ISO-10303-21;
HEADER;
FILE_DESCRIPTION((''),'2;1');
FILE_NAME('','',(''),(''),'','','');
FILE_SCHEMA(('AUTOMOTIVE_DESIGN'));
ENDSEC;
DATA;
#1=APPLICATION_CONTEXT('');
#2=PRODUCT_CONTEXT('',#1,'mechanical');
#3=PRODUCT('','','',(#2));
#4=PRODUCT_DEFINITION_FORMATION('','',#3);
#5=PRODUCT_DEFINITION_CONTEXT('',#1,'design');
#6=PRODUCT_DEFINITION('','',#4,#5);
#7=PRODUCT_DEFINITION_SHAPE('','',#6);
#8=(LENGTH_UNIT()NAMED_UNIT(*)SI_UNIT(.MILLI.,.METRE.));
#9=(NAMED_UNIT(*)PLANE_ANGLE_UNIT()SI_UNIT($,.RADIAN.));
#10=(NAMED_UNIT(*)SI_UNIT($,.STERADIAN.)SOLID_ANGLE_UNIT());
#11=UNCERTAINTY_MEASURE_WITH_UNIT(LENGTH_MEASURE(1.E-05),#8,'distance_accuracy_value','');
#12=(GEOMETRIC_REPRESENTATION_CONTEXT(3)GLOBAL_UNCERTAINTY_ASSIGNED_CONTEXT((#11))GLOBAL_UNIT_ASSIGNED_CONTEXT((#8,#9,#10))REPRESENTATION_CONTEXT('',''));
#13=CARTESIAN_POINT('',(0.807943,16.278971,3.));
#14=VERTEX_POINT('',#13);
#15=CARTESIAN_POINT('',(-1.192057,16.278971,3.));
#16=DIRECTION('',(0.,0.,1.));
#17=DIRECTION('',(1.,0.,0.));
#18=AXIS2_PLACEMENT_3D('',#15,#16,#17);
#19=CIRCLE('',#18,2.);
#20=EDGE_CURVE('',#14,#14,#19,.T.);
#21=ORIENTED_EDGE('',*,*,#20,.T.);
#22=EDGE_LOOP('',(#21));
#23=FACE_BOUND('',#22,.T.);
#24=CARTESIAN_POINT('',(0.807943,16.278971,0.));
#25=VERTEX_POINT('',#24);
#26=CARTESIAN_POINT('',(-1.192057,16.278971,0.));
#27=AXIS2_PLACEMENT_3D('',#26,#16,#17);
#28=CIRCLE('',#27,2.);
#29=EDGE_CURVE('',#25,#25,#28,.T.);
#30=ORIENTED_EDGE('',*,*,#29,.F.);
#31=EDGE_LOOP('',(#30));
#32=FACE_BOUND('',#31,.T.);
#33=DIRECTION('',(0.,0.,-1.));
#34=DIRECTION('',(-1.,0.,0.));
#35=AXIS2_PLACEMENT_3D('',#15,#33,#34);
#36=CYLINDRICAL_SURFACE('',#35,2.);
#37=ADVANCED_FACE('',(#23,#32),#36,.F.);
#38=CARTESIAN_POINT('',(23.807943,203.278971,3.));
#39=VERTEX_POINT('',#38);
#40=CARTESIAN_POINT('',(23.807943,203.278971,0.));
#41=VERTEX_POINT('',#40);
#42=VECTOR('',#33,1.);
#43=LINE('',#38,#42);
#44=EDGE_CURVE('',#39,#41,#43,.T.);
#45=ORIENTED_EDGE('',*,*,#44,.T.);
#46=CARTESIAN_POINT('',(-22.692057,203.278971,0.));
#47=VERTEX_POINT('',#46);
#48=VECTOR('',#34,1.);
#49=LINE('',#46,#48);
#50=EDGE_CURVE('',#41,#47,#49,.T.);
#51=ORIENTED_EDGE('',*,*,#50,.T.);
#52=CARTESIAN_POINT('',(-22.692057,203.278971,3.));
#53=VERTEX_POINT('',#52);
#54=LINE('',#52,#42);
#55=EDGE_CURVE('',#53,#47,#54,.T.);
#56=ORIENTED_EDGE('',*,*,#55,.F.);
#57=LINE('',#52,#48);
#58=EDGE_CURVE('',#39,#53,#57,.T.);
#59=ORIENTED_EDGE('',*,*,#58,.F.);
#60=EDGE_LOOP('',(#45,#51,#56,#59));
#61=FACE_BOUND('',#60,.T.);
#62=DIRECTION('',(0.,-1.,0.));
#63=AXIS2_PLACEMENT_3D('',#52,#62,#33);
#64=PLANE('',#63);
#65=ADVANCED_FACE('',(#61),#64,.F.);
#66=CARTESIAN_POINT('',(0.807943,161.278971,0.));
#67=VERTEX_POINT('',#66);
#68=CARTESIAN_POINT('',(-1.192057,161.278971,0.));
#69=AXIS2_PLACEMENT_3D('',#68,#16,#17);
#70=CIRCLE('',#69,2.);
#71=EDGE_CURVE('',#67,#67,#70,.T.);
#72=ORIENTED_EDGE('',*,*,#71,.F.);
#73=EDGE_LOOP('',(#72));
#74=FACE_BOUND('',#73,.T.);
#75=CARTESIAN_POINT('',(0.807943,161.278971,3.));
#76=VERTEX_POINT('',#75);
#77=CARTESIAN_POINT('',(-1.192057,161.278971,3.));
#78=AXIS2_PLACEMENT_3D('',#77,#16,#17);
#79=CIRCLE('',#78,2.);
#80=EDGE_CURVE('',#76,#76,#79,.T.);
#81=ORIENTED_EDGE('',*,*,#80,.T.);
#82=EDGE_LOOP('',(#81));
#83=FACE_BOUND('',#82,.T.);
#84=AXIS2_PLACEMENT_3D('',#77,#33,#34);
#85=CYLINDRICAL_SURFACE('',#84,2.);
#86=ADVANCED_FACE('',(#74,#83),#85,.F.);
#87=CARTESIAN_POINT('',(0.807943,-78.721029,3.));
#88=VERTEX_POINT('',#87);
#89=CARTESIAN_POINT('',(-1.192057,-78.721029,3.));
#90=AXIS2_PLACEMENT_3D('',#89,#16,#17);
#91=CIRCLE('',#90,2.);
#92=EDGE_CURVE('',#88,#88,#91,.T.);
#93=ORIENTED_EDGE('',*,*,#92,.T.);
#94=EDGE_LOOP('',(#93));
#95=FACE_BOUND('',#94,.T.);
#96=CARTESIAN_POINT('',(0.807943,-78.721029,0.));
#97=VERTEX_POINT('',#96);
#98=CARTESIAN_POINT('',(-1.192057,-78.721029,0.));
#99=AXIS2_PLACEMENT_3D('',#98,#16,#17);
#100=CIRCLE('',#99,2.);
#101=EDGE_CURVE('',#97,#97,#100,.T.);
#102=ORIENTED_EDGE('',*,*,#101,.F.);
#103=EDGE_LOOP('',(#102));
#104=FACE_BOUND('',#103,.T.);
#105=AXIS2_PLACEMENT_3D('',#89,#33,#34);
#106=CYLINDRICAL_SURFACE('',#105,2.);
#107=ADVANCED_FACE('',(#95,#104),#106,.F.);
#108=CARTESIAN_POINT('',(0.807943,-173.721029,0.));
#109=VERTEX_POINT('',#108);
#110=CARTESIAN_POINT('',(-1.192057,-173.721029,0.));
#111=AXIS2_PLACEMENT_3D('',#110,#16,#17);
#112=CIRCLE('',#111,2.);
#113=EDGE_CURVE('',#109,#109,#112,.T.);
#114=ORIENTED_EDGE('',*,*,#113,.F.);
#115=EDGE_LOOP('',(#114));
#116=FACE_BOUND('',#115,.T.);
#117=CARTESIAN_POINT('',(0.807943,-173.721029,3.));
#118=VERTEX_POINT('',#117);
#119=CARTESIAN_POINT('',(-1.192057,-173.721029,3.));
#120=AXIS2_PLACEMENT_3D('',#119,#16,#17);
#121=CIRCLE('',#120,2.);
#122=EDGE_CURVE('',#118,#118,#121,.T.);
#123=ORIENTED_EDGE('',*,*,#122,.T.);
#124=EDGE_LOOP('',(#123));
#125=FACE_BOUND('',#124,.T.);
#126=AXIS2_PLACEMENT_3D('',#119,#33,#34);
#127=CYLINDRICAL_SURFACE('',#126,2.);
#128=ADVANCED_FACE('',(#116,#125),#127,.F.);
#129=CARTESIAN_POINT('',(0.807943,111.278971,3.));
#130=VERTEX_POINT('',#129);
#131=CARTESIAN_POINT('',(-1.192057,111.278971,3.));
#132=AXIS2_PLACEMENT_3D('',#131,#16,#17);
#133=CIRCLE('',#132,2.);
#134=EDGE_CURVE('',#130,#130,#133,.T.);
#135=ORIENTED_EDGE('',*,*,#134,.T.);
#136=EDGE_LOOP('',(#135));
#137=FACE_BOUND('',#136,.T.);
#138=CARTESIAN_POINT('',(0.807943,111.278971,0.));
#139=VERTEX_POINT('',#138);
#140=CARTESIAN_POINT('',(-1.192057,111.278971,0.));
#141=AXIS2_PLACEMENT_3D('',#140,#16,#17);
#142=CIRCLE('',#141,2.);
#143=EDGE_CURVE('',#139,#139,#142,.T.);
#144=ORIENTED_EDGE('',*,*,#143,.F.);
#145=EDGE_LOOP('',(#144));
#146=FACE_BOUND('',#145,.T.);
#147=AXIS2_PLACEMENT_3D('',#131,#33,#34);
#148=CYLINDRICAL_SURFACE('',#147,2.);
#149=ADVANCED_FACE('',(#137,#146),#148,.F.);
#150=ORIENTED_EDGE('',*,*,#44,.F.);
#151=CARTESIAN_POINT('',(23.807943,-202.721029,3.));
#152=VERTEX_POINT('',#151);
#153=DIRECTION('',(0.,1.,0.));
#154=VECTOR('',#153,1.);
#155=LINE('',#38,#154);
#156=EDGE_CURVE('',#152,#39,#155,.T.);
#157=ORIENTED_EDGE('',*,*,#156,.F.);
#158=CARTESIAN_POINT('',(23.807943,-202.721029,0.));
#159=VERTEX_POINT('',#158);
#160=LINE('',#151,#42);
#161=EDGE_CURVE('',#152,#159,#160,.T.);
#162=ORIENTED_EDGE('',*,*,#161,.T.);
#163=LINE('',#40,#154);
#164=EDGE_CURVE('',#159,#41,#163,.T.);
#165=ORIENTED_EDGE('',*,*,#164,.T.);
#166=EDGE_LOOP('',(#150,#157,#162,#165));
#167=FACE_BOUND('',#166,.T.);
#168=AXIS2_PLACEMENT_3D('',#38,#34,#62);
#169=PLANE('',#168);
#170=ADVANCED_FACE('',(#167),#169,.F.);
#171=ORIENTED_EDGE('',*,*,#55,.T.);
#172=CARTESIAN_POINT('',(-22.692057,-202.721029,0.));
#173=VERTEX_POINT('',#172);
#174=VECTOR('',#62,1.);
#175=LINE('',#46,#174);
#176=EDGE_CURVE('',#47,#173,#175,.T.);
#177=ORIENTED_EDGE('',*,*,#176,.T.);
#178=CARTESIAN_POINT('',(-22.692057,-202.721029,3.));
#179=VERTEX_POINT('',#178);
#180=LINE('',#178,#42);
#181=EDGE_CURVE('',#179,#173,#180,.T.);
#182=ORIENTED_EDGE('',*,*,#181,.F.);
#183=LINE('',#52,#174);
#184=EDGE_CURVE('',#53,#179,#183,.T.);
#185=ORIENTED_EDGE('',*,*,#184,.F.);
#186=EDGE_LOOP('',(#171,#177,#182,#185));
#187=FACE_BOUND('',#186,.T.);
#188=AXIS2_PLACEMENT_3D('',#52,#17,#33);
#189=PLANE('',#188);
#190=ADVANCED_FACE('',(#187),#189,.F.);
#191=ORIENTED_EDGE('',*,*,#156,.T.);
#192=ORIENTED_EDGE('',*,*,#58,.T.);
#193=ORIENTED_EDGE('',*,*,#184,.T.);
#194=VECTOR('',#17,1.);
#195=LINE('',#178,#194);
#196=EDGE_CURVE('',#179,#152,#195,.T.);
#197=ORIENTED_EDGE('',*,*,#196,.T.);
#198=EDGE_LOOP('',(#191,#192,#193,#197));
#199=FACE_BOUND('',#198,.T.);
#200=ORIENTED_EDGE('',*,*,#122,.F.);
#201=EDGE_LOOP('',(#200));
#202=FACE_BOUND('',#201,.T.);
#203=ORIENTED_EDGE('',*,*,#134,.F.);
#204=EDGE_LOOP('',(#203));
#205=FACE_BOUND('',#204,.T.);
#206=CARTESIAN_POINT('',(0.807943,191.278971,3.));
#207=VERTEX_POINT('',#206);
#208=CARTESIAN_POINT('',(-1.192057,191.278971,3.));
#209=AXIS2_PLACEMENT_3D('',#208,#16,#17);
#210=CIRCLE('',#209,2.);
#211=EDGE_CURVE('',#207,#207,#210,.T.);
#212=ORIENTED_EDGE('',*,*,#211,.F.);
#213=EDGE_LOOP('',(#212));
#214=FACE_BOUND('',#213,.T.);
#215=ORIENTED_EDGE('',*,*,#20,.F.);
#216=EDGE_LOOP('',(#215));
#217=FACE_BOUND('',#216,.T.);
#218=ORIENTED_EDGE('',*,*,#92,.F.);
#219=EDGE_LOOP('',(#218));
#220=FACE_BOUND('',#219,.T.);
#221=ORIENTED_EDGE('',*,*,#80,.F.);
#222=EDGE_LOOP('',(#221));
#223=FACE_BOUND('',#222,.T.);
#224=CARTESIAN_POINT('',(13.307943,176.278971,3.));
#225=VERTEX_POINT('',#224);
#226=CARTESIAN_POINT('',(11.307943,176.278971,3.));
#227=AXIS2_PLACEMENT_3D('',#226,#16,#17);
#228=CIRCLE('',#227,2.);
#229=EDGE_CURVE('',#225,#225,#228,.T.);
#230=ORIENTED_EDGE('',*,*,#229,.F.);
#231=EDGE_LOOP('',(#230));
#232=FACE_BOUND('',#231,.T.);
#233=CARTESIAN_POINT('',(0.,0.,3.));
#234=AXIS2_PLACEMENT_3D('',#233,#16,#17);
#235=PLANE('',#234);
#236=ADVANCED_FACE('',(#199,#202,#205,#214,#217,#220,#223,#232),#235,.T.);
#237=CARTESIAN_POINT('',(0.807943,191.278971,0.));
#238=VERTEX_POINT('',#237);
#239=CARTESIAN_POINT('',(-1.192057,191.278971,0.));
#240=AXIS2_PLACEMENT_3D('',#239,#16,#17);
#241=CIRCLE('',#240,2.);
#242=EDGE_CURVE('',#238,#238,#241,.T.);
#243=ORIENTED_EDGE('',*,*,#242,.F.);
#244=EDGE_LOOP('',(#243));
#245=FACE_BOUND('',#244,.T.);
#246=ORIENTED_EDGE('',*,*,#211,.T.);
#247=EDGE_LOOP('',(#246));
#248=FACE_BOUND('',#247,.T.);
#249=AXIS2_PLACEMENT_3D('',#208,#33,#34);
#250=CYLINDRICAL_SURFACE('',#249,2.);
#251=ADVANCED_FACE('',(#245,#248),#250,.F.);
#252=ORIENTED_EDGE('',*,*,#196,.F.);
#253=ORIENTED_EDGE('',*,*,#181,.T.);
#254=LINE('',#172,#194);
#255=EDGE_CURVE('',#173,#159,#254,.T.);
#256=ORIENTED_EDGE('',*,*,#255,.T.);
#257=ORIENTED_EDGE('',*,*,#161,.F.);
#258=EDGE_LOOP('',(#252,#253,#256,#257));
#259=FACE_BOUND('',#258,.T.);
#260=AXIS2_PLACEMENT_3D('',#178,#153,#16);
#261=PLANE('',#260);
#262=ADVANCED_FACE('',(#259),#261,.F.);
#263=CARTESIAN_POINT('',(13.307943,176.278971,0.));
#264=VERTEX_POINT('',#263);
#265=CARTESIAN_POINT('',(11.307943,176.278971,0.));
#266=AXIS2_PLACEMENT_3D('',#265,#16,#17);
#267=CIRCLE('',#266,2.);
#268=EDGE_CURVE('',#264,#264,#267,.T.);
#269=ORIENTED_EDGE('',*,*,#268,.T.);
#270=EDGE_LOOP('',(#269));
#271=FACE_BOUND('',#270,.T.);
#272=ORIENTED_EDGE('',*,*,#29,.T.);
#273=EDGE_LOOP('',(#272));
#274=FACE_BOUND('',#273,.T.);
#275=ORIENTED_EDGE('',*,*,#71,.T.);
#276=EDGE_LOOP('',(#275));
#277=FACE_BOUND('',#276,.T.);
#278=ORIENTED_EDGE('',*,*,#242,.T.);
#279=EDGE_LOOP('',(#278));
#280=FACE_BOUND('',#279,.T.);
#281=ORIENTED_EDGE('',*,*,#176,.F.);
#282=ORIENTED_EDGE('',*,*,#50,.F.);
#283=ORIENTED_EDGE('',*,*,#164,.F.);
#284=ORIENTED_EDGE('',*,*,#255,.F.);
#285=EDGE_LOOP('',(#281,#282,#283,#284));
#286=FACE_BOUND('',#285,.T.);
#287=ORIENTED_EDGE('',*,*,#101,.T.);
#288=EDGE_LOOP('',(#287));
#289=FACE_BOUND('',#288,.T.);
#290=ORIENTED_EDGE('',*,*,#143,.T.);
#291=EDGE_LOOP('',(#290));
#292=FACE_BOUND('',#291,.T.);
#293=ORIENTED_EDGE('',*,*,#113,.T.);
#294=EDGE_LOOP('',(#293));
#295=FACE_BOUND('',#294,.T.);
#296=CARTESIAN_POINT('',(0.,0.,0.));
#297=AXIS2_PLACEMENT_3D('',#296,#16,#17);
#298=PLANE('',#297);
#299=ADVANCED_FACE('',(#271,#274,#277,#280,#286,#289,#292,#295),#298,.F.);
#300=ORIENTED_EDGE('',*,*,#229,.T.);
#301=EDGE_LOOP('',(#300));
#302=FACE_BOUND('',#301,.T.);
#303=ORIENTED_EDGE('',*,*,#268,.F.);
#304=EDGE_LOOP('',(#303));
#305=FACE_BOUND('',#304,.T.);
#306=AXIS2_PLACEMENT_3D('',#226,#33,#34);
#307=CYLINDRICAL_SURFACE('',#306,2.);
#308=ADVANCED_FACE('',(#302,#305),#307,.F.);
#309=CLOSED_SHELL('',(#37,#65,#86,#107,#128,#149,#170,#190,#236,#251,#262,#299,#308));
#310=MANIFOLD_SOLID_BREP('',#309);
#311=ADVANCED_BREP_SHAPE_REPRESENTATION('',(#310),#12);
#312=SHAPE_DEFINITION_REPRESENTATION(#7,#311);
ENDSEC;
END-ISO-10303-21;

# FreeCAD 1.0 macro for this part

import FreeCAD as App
import Part
import Sketcher

V = App.Vector
Q = App.Units.Quantity


def add_polygon(sketch, points):
    """Adds a closed chain of lines whose ends are joined by coincident constraints."""
    first, n = sketch.GeometryCount, len(points)
    for a, b in zip(points, points[1:] + points[:1]):
        sketch.addGeometry(Part.LineSegment(App.Vector(*a, 0), App.Vector(*b, 0)), False)
    for i in range(n):
        sketch.addConstraint(Sketcher.Constraint("Coincident", first + i, 2, first + (i + 1) % n, 1))

doc = App.newDocument("Part")
body = doc.addObject("PartDesign::Body", "Body")

sketch1 = body.newObject("Sketcher::SketchObject", "Sketch")
sketch1.AttachmentSupport = (doc.getObject("XY_Plane"), [""])
sketch1.MapMode = "FlatFace"
add_polygon(sketch1, [(-22.7, 203.3), (-22.7, -202.7), (23.8, -202.7), (23.8, 203.3)])
sketch1.addGeometry(Part.Circle(V(-1.2, -173.7, 0), V(0, 0, 1), 2), False)
sketch1.addGeometry(Part.Circle(V(-1.2, -78.7, 0), V(0, 0, 1), 2), False)
sketch1.addGeometry(Part.Circle(V(-1.2, 16.3, 0), V(0, 0, 1), 2), False)
sketch1.addGeometry(Part.Circle(V(-1.2, 111.3, 0), V(0, 0, 1), 2), False)
sketch1.addGeometry(Part.Circle(V(-1.2, 161.3, 0), V(0, 0, 1), 2), False)
sketch1.addGeometry(Part.Circle(V(-1.2, 191.3, 0), V(0, 0, 1), 2), False)
sketch1.addGeometry(Part.Circle(V(11.3, 176.3, 0), V(0, 0, 1), 2), False)
sketch1.addConstraint([
    Sketcher.Constraint("Vertical", 0),
    Sketcher.Constraint("Horizontal", 1),
    Sketcher.Constraint("Vertical", 2),
    Sketcher.Constraint("Horizontal", 3),
    Sketcher.Constraint("Equal", 4, 5),
    Sketcher.Constraint("Equal", 5, 6),
    Sketcher.Constraint("Equal", 6, 7),
    Sketcher.Constraint("Equal", 7, 8),
    Sketcher.Constraint("Equal", 8, 9),
    Sketcher.Constraint("Equal", 9, 10),
    Sketcher.Constraint("Vertical", 4, 3, 5, 3),
    Sketcher.Constraint("Vertical", 5, 3, 6, 3),
    Sketcher.Constraint("Vertical", 6, 3, 7, 3),
    Sketcher.Constraint("Vertical", 7, 3, 8, 3),
    Sketcher.Constraint("Vertical", 8, 3, 9, 3),
    Sketcher.Constraint("Diameter", 4, Q("4 mm")),
    Sketcher.Constraint("DistanceY", 0, 2, 0, 1, Q("406 mm")),
    Sketcher.Constraint("DistanceX", 1, 1, 1, 2, Q("46.5 mm")),
    Sketcher.Constraint("DistanceY", 4, 3, 5, 3, Q("95 mm")),
    Sketcher.Constraint("DistanceY", 5, 3, 6, 3, Q("95 mm")),
    Sketcher.Constraint("DistanceY", 6, 3, 7, 3, Q("95 mm")),
    Sketcher.Constraint("DistanceY", 7, 3, 8, 3, Q("50 mm")),
    Sketcher.Constraint("DistanceY", 8, 3, 9, 3, Q("30 mm")),
    Sketcher.Constraint("DistanceY", 8, 3, 10, 3, Q("15 mm")),
    Sketcher.Constraint("DistanceY", 0, 2, 4, 3, Q("29 mm")),
    Sketcher.Constraint("DistanceX", 4, 3, 1, 2, Q("25 mm")),
    Sketcher.Constraint("DistanceX", 3, 2, 10, 3, Q("34 mm")),
    Sketcher.Constraint("DistanceY", 4, 3, -1, 1, Q("173.721029 mm")),
    Sketcher.Constraint("DistanceX", 4, 3, -1, 1, Q("1.192057 mm")),
])
pad1 = body.newObject("PartDesign::Pad", "Pad")
pad1.Profile = sketch1
pad1.Length = 3

doc.recompute()
